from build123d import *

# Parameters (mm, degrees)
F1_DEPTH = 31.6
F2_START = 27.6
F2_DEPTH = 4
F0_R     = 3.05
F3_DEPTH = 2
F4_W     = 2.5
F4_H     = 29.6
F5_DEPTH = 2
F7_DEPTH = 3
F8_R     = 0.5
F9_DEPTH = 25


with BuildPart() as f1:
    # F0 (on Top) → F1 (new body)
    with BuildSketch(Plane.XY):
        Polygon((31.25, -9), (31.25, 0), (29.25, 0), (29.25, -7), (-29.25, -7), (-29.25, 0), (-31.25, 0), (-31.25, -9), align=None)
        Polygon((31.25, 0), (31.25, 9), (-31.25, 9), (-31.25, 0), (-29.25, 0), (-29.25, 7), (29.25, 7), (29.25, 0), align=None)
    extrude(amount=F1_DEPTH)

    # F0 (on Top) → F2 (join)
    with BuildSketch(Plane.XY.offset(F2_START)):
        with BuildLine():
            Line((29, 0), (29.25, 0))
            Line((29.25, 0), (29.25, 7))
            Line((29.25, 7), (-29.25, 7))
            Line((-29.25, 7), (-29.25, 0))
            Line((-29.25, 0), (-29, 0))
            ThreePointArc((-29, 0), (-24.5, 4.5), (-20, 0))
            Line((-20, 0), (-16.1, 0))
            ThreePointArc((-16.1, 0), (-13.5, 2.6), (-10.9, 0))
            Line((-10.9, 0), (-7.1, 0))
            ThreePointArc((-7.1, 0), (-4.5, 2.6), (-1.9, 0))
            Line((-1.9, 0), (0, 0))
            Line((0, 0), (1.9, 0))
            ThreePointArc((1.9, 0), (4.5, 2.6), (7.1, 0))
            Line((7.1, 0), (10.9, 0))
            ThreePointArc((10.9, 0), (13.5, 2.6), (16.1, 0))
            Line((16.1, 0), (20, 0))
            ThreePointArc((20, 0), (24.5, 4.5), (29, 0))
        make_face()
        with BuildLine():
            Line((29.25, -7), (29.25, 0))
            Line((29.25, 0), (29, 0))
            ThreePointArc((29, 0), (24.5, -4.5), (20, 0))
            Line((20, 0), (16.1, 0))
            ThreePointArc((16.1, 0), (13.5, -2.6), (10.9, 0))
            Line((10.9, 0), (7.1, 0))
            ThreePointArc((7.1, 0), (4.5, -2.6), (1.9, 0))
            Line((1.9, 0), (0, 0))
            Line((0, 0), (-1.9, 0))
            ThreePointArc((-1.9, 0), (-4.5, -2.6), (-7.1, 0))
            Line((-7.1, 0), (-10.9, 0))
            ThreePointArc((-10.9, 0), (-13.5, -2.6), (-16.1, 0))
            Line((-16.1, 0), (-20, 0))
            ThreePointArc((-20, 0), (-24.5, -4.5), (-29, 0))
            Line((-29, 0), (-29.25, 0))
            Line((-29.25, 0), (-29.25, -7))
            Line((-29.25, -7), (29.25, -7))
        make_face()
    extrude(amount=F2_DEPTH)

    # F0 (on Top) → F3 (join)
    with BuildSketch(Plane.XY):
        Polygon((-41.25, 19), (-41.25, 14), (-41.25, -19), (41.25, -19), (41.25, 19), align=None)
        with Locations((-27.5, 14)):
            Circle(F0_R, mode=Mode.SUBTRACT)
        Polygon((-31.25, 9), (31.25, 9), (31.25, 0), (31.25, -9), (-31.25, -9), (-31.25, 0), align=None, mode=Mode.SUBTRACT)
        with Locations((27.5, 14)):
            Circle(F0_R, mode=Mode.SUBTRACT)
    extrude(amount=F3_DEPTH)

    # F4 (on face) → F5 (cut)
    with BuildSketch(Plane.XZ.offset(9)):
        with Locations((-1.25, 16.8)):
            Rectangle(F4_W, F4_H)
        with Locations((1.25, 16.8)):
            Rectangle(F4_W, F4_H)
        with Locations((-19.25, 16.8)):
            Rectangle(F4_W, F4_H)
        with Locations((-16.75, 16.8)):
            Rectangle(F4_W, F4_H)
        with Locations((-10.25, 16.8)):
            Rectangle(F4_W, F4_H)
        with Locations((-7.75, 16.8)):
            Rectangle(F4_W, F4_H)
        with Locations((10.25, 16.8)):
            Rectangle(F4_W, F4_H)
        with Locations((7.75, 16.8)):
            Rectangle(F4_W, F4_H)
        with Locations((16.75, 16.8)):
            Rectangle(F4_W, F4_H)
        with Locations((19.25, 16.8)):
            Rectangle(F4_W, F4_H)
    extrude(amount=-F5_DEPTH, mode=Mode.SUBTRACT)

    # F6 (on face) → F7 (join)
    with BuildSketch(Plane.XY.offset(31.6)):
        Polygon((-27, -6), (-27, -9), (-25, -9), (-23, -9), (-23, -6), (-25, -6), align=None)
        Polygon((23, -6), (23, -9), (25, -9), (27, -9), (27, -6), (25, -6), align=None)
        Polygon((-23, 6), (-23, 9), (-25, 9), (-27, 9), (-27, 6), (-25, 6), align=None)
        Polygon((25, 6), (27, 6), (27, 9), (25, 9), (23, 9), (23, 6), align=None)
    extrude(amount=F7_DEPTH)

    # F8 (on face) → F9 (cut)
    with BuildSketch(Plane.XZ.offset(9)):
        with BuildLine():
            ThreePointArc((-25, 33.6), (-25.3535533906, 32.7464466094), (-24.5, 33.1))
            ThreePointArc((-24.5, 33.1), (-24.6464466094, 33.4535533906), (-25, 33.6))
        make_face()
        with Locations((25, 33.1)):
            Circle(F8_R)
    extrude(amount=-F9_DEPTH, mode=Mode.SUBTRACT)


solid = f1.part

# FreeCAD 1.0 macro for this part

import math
import FreeCAD as App
import Part
import Sketcher

V = App.Vector


def add_polygon(sketch, points):
    """Adds a closed chain of lines whose ends are joined by coincident constraints."""
    first, n = sketch.GeometryCount, len(points)
    for a, b in zip(points, points[1:] + points[:1]):
        sketch.addGeometry(Part.LineSegment(App.Vector(*a, 0), App.Vector(*b, 0)), False)
    for i in range(n):
        sketch.addConstraint(Sketcher.Constraint("Coincident", first + i, 2, first + (i + 1) % n, 1))

doc = App.newDocument("Part")
params = doc.addObject("Spreadsheet::Sheet", "Params")
for row, (alias, value) in enumerate([
    ("sketch1_height", "18 mm"),
    ("sketch1_height2", "14 mm"),
    ("sketch1_width", "62.5 mm"),
    ("sketch1_width2", "58.5 mm"),
    ("pad1_length", "31.6 mm"),
    ("sketch2_diameter", "9 mm"),
    ("sketch2_diameter2", "5.2 mm"),
    ("sketch2_height", "14 mm"),
    ("sketch2_width", "58.5 mm"),
    ("pad2_length", "4 mm"),
    ("sketch3_diameter", "6.1 mm"),
    ("sketch3_height", "38 mm"),
    ("sketch3_height2", "18 mm"),
    ("sketch3_width", "82.5 mm"),
    ("sketch3_width2", "62.5 mm"),
    ("pad3_length", "2 mm"),
    ("sketch4_width", "5 mm"),
    ("sketch4_height", "29.6 mm"),
    ("pocket1_length", "2 mm"),
    ("sketch5_width", "4 mm"),
    ("sketch5_height", "3 mm"),
    ("pad4_length", "3 mm"),
    ("sketch6_diameter", "1 mm"),
    ("pocket2_length", "25 mm"),
], start=1):
    params.set(f"A{row}", alias)
    params.set(f"B{row}", "=" + value)
    params.setAlias(f"B{row}", alias)

body = doc.addObject("PartDesign::Body", "Body")

# Sketch on XY plane
sketch1 = body.newObject("Sketcher::SketchObject", "Sketch")
sketch1.AttachmentSupport = (doc.getObject("XY_Plane"), [""])
sketch1.MapMode = "FlatFace"
add_polygon(sketch1, [(31, -9), (31, 9), (-31, 9), (-31, -9)])  # lines 0-3
add_polygon(sketch1, [(29, -7), (-29, -7), (-29, 7), (29, 7)])  # lines 4-7
sketch1.addConstraint(Sketcher.Constraint("Vertical", 0))
sketch1.addConstraint(Sketcher.Constraint("Horizontal", 1))
sketch1.addConstraint(Sketcher.Constraint("Vertical", 2))
sketch1.addConstraint(Sketcher.Constraint("Horizontal", 3))
sketch1.addConstraint(Sketcher.Constraint("Horizontal", 4))
sketch1.addConstraint(Sketcher.Constraint("Vertical", 5))
sketch1.addConstraint(Sketcher.Constraint("Horizontal", 6))
sketch1.addConstraint(Sketcher.Constraint("Vertical", 7))
sketch1.addConstraint(Sketcher.Constraint("Symmetric", 0, 2, 2, 2, -1, 1))
sketch1.addConstraint(Sketcher.Constraint("Symmetric", 4, 2, 6, 2, -1, 1))
sketch1.addConstraint(Sketcher.Constraint("DistanceY", 0, 1, 0, 2, 18.0))
sketch1.addConstraint(Sketcher.Constraint("DistanceY", 5, 1, 5, 2, 14.0))
sketch1.addConstraint(Sketcher.Constraint("DistanceX", 1, 2, 1, 1, 62.5))
sketch1.addConstraint(Sketcher.Constraint("DistanceX", 4, 2, 4, 1, 58.5))
sketch1.setExpression("Constraints[18]", "Params.sketch1_height")
sketch1.setExpression("Constraints[19]", "Params.sketch1_height2")
sketch1.setExpression("Constraints[20]", "Params.sketch1_width")
sketch1.setExpression("Constraints[21]", "Params.sketch1_width2")
pad1 = body.newObject("PartDesign::Pad", "Pad")
pad1.Profile = sketch1
pad1.setExpression("Length", "Params.pad1_length")

# Sketch on XY plane
sketch2 = body.newObject("Sketcher::SketchObject", "Sketch001")
sketch2.AttachmentSupport = (doc.getObject("XY_Plane"), [""])
sketch2.MapMode = "FlatFace"
sketch2.AttachmentOffset = App.Placement(V(0, 0, 27.6), App.Rotation())
add_polygon(sketch2, [(29.2, 7), (-29.2, 7), (-29.2, -7), (29.2, -7)])  # lines 0-3
sketch2.addGeometry(Part.Circle(V(-24.5, 0, 0), V(0, 0, 1), 4.5), False)  # 4
sketch2.addGeometry(Part.Circle(V(-13.5, 0, 0), V(0, 0, 1), 2.6), False)  # 5
sketch2.addGeometry(Part.Circle(V(-4.5, 0, 0), V(0, 0, 1), 2.6), False)  # 6
sketch2.addGeometry(Part.Circle(V(4.5, 0, 0), V(0, 0, 1), 2.6), False)  # 7
sketch2.addGeometry(Part.Circle(V(13.5, 0, 0), V(0, 0, 1), 2.6), False)  # 8
sketch2.addGeometry(Part.Circle(V(24.5, 0, 0), V(0, 0, 1), 4.5), False)  # 9
sketch2.addConstraint(Sketcher.Constraint("Horizontal", 0))
sketch2.addConstraint(Sketcher.Constraint("Vertical", 1))
sketch2.addConstraint(Sketcher.Constraint("Horizontal", 2))
sketch2.addConstraint(Sketcher.Constraint("Vertical", 3))
sketch2.addConstraint(Sketcher.Constraint("Equal", 5, 6))
sketch2.addConstraint(Sketcher.Constraint("Equal", 6, 7))
sketch2.addConstraint(Sketcher.Constraint("Equal", 7, 8))
sketch2.addConstraint(Sketcher.Constraint("Equal", 4, 9))
sketch2.addConstraint(Sketcher.Constraint("Symmetric", 6, 3, 7, 3, -1, 1))
sketch2.addConstraint(Sketcher.Constraint("Symmetric", 5, 3, 8, 3, -1, 1))
sketch2.addConstraint(Sketcher.Constraint("Symmetric", 4, 3, 9, 3, -1, 1))
sketch2.addConstraint(Sketcher.Constraint("Symmetric", 0, 2, 2, 2, -1, 1))
sketch2.addConstraint(Sketcher.Constraint("PointOnObject", 4, 3, -1))
sketch2.addConstraint(Sketcher.Constraint("PointOnObject", 5, 3, -1))
sketch2.addConstraint(Sketcher.Constraint("PointOnObject", 6, 3, -1))
sketch2.addConstraint(Sketcher.Constraint("Diameter", 4, 9.0))
sketch2.addConstraint(Sketcher.Constraint("Diameter", 5, 5.2))
sketch2.addConstraint(Sketcher.Constraint("DistanceY", 1, 2, 1, 1, 14.0))
sketch2.addConstraint(Sketcher.Constraint("DistanceX", 0, 2, 0, 1, 58.5))
sketch2.addConstraint(Sketcher.Constraint("DistanceX", 4, 3, 5, 3, 11.0))
sketch2.addConstraint(Sketcher.Constraint("DistanceX", 5, 3, 6, 3, 9.0))
sketch2.addConstraint(Sketcher.Constraint("DistanceX", 6, 3, 7, 3, 9.0))
sketch2.setExpression("Constraints[19]", "Params.sketch2_diameter")
sketch2.setExpression("Constraints[20]", "Params.sketch2_diameter2")
sketch2.setExpression("Constraints[21]", "Params.sketch2_height")
sketch2.setExpression("Constraints[22]", "Params.sketch2_width")
pad2 = body.newObject("PartDesign::Pad", "Pad001")
pad2.Profile = sketch2
pad2.setExpression("Length", "Params.pad2_length")

# Sketch on XY plane
sketch3 = body.newObject("Sketcher::SketchObject", "Sketch002")
sketch3.AttachmentSupport = (doc.getObject("XY_Plane"), [""])
sketch3.MapMode = "FlatFace"
add_polygon(sketch3, [(-41.2, 19), (-41.2, -19), (41.2, -19), (41.2, 19)])  # lines 0-3
add_polygon(sketch3, [(-31.2, -9), (-31.2, 9), (31.2, 9), (31.2, -9)])  # lines 4-7
sketch3.addGeometry(Part.Circle(V(-27.5, 14, 0), V(0, 0, 1), 3), False)  # 8
sketch3.addGeometry(Part.Circle(V(27.5, 14, 0), V(0, 0, 1), 3), False)  # 9
sketch3.addConstraint(Sketcher.Constraint("Vertical", 0))
sketch3.addConstraint(Sketcher.Constraint("Horizontal", 1))
sketch3.addConstraint(Sketcher.Constraint("Vertical", 2))
sketch3.addConstraint(Sketcher.Constraint("Horizontal", 3))
sketch3.addConstraint(Sketcher.Constraint("Vertical", 4))
sketch3.addConstraint(Sketcher.Constraint("Horizontal", 5))
sketch3.addConstraint(Sketcher.Constraint("Vertical", 6))
sketch3.addConstraint(Sketcher.Constraint("Horizontal", 7))
sketch3.addConstraint(Sketcher.Constraint("Equal", 8, 9))
sketch3.addConstraint(Sketcher.Constraint("Symmetric", 0, 2, 2, 2, -1, 1))
sketch3.addConstraint(Sketcher.Constraint("Symmetric", 4, 2, 6, 2, -1, 1))
sketch3.addConstraint(Sketcher.Constraint("Symmetric", 8, 3, 9, 3, -2))
sketch3.addConstraint(Sketcher.Constraint("Diameter", 8, 6.1))
sketch3.addConstraint(Sketcher.Constraint("DistanceY", 0, 2, 0, 1, 38.0))
sketch3.addConstraint(Sketcher.Constraint("DistanceY", 4, 1, 4, 2, 18.0))
sketch3.addConstraint(Sketcher.Constraint("DistanceX", 1, 1, 1, 2, 82.5))
sketch3.addConstraint(Sketcher.Constraint("DistanceX", 5, 1, 5, 2, 62.5))
sketch3.addConstraint(Sketcher.Constraint("DistanceY", -1, 1, 8, 3, 14.0))
sketch3.addConstraint(Sketcher.Constraint("DistanceX", 8, 3, 9, 3, 55.0))
sketch3.setExpression("Constraints[20]", "Params.sketch3_diameter")
sketch3.setExpression("Constraints[21]", "Params.sketch3_height")
sketch3.setExpression("Constraints[22]", "Params.sketch3_height2")
sketch3.setExpression("Constraints[23]", "Params.sketch3_width")
sketch3.setExpression("Constraints[24]", "Params.sketch3_width2")
pad3 = body.newObject("PartDesign::Pad", "Pad002")
pad3.Profile = sketch3
pad3.setExpression("Length", "Params.pad3_length")

# Sketch on XZ plane
sketch4 = body.newObject("Sketcher::SketchObject", "Sketch003")
sketch4.AttachmentSupport = (doc.getObject("XZ_Plane"), [""])
sketch4.MapMode = "FlatFace"
sketch4.AttachmentOffset = App.Placement(V(0, 0, 9), App.Rotation())
add_polygon(sketch4, [(-2, 32), (-2, 2), (2, 2), (2, 32)])  # lines 0-3
add_polygon(sketch4, [(-20, 32), (-20, 2), (-16, 2), (-16, 32)])  # lines 4-7
add_polygon(sketch4, [(-12, 32), (-12, 2), (-6, 2), (-6, 32)])  # lines 8-11
add_polygon(sketch4, [(12, 2), (12, 32), (6, 32), (6, 2)])  # lines 12-15
add_polygon(sketch4, [(16, 32), (16, 2), (20, 2), (20, 32)])  # lines 16-19
sketch4.addConstraint(Sketcher.Constraint("Vertical", 0))
sketch4.addConstraint(Sketcher.Constraint("Horizontal", 1))
sketch4.addConstraint(Sketcher.Constraint("Vertical", 2))
sketch4.addConstraint(Sketcher.Constraint("Horizontal", 3))
sketch4.addConstraint(Sketcher.Constraint("Vertical", 4))
sketch4.addConstraint(Sketcher.Constraint("Horizontal", 5))
sketch4.addConstraint(Sketcher.Constraint("Vertical", 6))
sketch4.addConstraint(Sketcher.Constraint("Horizontal", 7))
sketch4.addConstraint(Sketcher.Constraint("Vertical", 8))
sketch4.addConstraint(Sketcher.Constraint("Horizontal", 9))
sketch4.addConstraint(Sketcher.Constraint("Vertical", 10))
sketch4.addConstraint(Sketcher.Constraint("Horizontal", 11))
sketch4.addConstraint(Sketcher.Constraint("Vertical", 12))
sketch4.addConstraint(Sketcher.Constraint("Horizontal", 13))
sketch4.addConstraint(Sketcher.Constraint("Vertical", 14))
sketch4.addConstraint(Sketcher.Constraint("Horizontal", 15))
sketch4.addConstraint(Sketcher.Constraint("Vertical", 16))
sketch4.addConstraint(Sketcher.Constraint("Horizontal", 17))
sketch4.addConstraint(Sketcher.Constraint("Vertical", 18))
sketch4.addConstraint(Sketcher.Constraint("Horizontal", 19))
sketch4.addConstraint(Sketcher.Constraint("Symmetric", 11, 2, 12, 2, -2))
sketch4.addConstraint(Sketcher.Constraint("Symmetric", 9, 2, 14, 2, -2))
sketch4.addConstraint(Sketcher.Constraint("Symmetric", 5, 2, 16, 2, -2))
sketch4.addConstraint(Sketcher.Constraint("Symmetric", 7, 2, 18, 2, -2))
sketch4.addConstraint(Sketcher.Constraint("Horizontal", 1, 2, 4, 2))
sketch4.addConstraint(Sketcher.Constraint("Horizontal", 3, 2, 6, 2))
sketch4.addConstraint(Sketcher.Constraint("Horizontal", 5, 2, 8, 2))
sketch4.addConstraint(Sketcher.Constraint("Horizontal", 7, 2, 10, 2))
sketch4.addConstraint(Sketcher.Constraint("Equal", 3, 5))
sketch4.addConstraint(Sketcher.Constraint("Equal", 7, 9))
sketch4.addConstraint(Sketcher.Constraint("DistanceX", 1, 1, 1, 2, 5.0))
sketch4.addConstraint(Sketcher.Constraint("DistanceY", 0, 2, 0, 1, 29.6))
sketch4.addConstraint(Sketcher.Constraint("DistanceY", -1, 1, 0, 2, 2.0))
sketch4.addConstraint(Sketcher.Constraint("DistanceX", 4, 2, 0, 2, 18.0))
sketch4.addConstraint(Sketcher.Constraint("DistanceX", 5, 2, 8, 2, 4.0))
sketch4.addConstraint(Sketcher.Constraint("DistanceX", 2, 2, 12, 2, 9.0))
sketch4.setExpression("Constraints[50]", "Params.sketch4_width")
sketch4.setExpression("Constraints[51]", "Params.sketch4_height")
pocket1 = body.newObject("PartDesign::Pocket", "Pocket")
pocket1.Profile = sketch4
pocket1.setExpression("Length", "Params.pocket1_length")

# Sketch on XY plane
sketch5 = body.newObject("Sketcher::SketchObject", "Sketch004")
sketch5.AttachmentSupport = (doc.getObject("XY_Plane"), [""])
sketch5.MapMode = "FlatFace"
sketch5.AttachmentOffset = App.Placement(V(0, 0, 31.6), App.Rotation())
add_polygon(sketch5, [(-27, -6), (-27, -9), (-23, -9), (-23, -6)])  # lines 0-3
add_polygon(sketch5, [(23, -6), (23, -9), (27, -9), (27, -6)])  # lines 4-7
add_polygon(sketch5, [(-23, 6), (-23, 9), (-27, 9), (-27, 6)])  # lines 8-11
add_polygon(sketch5, [(27, 6), (27, 9), (23, 9), (23, 6)])  # lines 12-15
sketch5.addConstraint(Sketcher.Constraint("Vertical", 0))
sketch5.addConstraint(Sketcher.Constraint("Horizontal", 1))
sketch5.addConstraint(Sketcher.Constraint("Vertical", 2))
sketch5.addConstraint(Sketcher.Constraint("Horizontal", 3))
sketch5.addConstraint(Sketcher.Constraint("Vertical", 4))
sketch5.addConstraint(Sketcher.Constraint("Horizontal", 5))
sketch5.addConstraint(Sketcher.Constraint("Vertical", 6))
sketch5.addConstraint(Sketcher.Constraint("Horizontal", 7))
sketch5.addConstraint(Sketcher.Constraint("Vertical", 8))
sketch5.addConstraint(Sketcher.Constraint("Horizontal", 9))
sketch5.addConstraint(Sketcher.Constraint("Vertical", 10))
sketch5.addConstraint(Sketcher.Constraint("Horizontal", 11))
sketch5.addConstraint(Sketcher.Constraint("Vertical", 12))
sketch5.addConstraint(Sketcher.Constraint("Horizontal", 13))
sketch5.addConstraint(Sketcher.Constraint("Vertical", 14))
sketch5.addConstraint(Sketcher.Constraint("Horizontal", 15))
sketch5.addConstraint(Sketcher.Constraint("Symmetric", 4, 2, 8, 2, -1, 1))
sketch5.addConstraint(Sketcher.Constraint("Symmetric", 6, 2, 10, 2, -1, 1))
sketch5.addConstraint(Sketcher.Constraint("Symmetric", 0, 2, 12, 2, -1, 1))
sketch5.addConstraint(Sketcher.Constraint("Symmetric", 2, 2, 14, 2, -1, 1))
sketch5.addConstraint(Sketcher.Constraint("Symmetric", 1, 2, 4, 2, -2))
sketch5.addConstraint(Sketcher.Constraint("Symmetric", 3, 2, 6, 2, -2))
sketch5.addConstraint(Sketcher.Constraint("DistanceX", 1, 1, 1, 2, 4.0))
sketch5.addConstraint(Sketcher.Constraint("DistanceY", 0, 2, 0, 1, 3.0))
sketch5.addConstraint(Sketcher.Constraint("DistanceX", 0, 2, -1, 1, 27.0))
sketch5.addConstraint(Sketcher.Constraint("DistanceY", 0, 2, -1, 1, 9.0))
sketch5.setExpression("Constraints[38]", "Params.sketch5_width")
sketch5.setExpression("Constraints[39]", "Params.sketch5_height")
pad4 = body.newObject("PartDesign::Pad", "Pad003")
pad4.Profile = sketch5
pad4.setExpression("Length", "Params.pad4_length")

# Sketch on XZ plane
sketch6 = body.newObject("Sketcher::SketchObject", "Sketch005")
sketch6.AttachmentSupport = (doc.getObject("XZ_Plane"), [""])
sketch6.MapMode = "FlatFace"
sketch6.AttachmentOffset = App.Placement(V(0, 0, 9), App.Rotation())
sketch6.addGeometry(Part.ArcOfCircle(Part.Circle(V(-25, 33.1, 0), V(0, 0, 1), 0.5), math.radians(90), math.radians(360)), False)
sketch6.addGeometry(Part.ArcOfCircle(Part.Circle(V(-25, 33.1, 0), V(0, 0, 1), 0.5), math.radians(0), math.radians(90)), False)
sketch6.addGeometry(Part.Circle(V(25, 33.1, 0), V(0, 0, 1), 0.5), False)
sketch6.addConstraint(Sketcher.Constraint("Tangent", 0, 1, 1, 2))
sketch6.addConstraint(Sketcher.Constraint("Coincident", 1, 1, 0, 2))
sketch6.addConstraint(Sketcher.Constraint("Equal", 1, 2))
sketch6.addConstraint(Sketcher.Constraint("Symmetric", 0, 3, 2, 3, -2))
sketch6.addConstraint(Sketcher.Constraint("Horizontal", 2, 3, 1, 1))
sketch6.addConstraint(Sketcher.Constraint("Vertical", 1, 3, 0, 1))
sketch6.addConstraint(Sketcher.Constraint("Diameter", 2, 1.0))
sketch6.addConstraint(Sketcher.Constraint("DistanceX", 0, 3, -1, 1, 25.0))
sketch6.addConstraint(Sketcher.Constraint("DistanceY", -1, 1, 0, 3, 33.1))
sketch6.setExpression("Constraints[6]", "Params.sketch6_diameter")
pocket2 = body.newObject("PartDesign::Pocket", "Pocket001")
pocket2.Profile = sketch6
pocket2.setExpression("Length", "Params.pocket2_length")

doc.recompute()
